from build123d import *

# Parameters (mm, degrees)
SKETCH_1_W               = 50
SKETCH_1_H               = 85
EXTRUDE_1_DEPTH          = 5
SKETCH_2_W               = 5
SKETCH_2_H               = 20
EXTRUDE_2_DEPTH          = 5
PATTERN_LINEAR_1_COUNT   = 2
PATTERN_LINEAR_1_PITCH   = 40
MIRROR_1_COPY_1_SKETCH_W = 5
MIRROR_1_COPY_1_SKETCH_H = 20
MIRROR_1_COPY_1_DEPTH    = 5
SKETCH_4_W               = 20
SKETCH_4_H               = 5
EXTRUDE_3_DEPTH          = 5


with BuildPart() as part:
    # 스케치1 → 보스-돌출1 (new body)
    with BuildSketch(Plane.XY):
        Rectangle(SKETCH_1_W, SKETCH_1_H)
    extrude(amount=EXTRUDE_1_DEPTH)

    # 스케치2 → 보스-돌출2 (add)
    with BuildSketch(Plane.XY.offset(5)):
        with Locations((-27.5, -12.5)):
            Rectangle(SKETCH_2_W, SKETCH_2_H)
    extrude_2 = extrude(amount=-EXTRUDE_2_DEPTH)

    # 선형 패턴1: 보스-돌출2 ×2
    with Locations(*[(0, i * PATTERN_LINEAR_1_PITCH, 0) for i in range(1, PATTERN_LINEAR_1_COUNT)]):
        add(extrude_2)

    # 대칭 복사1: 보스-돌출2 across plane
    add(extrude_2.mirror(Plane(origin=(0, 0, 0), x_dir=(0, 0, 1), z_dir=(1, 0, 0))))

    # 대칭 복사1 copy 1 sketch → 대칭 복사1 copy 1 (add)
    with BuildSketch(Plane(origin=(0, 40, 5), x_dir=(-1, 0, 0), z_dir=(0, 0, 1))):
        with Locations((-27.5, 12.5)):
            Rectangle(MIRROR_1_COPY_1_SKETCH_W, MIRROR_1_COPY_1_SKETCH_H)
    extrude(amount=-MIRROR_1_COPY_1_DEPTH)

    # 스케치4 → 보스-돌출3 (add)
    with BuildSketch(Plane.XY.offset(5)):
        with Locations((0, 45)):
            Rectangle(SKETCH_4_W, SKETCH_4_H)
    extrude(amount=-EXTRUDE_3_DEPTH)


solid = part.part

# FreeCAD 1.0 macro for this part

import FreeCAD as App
import Part
import Sketcher
Q = App.Units.Quantity


def add_polygon(sketch, points):
    """Adds a closed chain of lines whose ends are joined by coincident constraints."""
    first, n = sketch.GeometryCount, len(points)
    for a, b in zip(points, points[1:] + points[:1]):
        sketch.addGeometry(Part.LineSegment(App.Vector(*a, 0), App.Vector(*b, 0)), False)
    for i in range(n):
        sketch.addConstraint(Sketcher.Constraint("Coincident", first + i, 2, first + (i + 1) % n, 1))

doc = App.newDocument("Part")
body = doc.addObject("PartDesign::Body", "Body")

# Sketch on XY plane
sketch1 = body.newObject("Sketcher::SketchObject", "Sketch")
sketch1.AttachmentSupport = (doc.getObject("XY_Plane"), [""])
sketch1.MapMode = "FlatFace"
add_polygon(sketch1, [(-25, 42), (-25, -42), (25, -42), (25, 42)])  # lines 0-3
sketch1.addConstraint([
    Sketcher.Constraint("Vertical", 0),
    Sketcher.Constraint("Horizontal", 1),
    Sketcher.Constraint("Vertical", 2),
    Sketcher.Constraint("Horizontal", 3),
    Sketcher.Constraint("Symmetric", 0, 2, 2, 2, -1, 1),
    Sketcher.Constraint("DistanceX", 1, 1, 1, 2, Q("50 mm")),
    Sketcher.Constraint("DistanceY", 0, 2, 0, 1, Q("85 mm")),
])
pad1 = body.newObject("PartDesign::Pad", "Pad")
pad1.Profile = sketch1
pad1.Length = 5

# Sketch on XY plane
sketch2 = body.newObject("Sketcher::SketchObject", "Sketch001")
sketch2.AttachmentSupport = (doc.getObject("XY_Plane"), [""])
sketch2.MapMode = "FlatFace"
sketch2.AttachmentOffset = App.Placement(App.Vector(0, 0, 5), App.Rotation())
add_polygon(sketch2, [(-30, -2), (-30, -22), (-25, -22), (-25, -2)])  # lines 0-3
sketch2.addConstraint([
    Sketcher.Constraint("Vertical", 0),
    Sketcher.Constraint("Horizontal", 1),
    Sketcher.Constraint("Vertical", 2),
    Sketcher.Constraint("Horizontal", 3),
    Sketcher.Constraint("DistanceX", 1, 1, 1, 2, Q("5 mm")),
    Sketcher.Constraint("DistanceY", 0, 2, 0, 1, Q("20 mm")),
    Sketcher.Constraint("DistanceX", 0, 2, -1, 1, Q("30 mm")),
    Sketcher.Constraint("DistanceY", 0, 2, -1, 1, Q("22.5 mm")),
])
pad2 = body.newObject("PartDesign::Pad", "Pad001")
pad2.Profile = sketch2
pad2.Length = 5
pad2.Reversed = True
doc.recompute()

linearpattern = body.newObject("PartDesign::LinearPattern", "LinearPattern")
linearpattern.Originals = [pad2]
linearpattern.Direction = (doc.getObject("Y_Axis"), [""])
linearpattern.Mode = "offset"
linearpattern.Offset = 40
linearpattern.Occurrences = 2
body.Tip = linearpattern
doc.recompute()

mirrored = body.newObject("PartDesign::Mirrored", "Mirrored")
mirrored.Originals = [pad2]
mirrored.MirrorPlane = (doc.getObject("YZ_Plane"), [""])
body.Tip = mirrored

# Sketch on XY plane
sketch3 = body.newObject("Sketcher::SketchObject", "Sketch002")
sketch3.AttachmentSupport = (doc.getObject("XY_Plane"), [""])
sketch3.MapMode = "FlatFace"
sketch3.AttachmentOffset = App.Placement(App.Vector(0, 0, 5), App.Rotation())
add_polygon(sketch3, [(30, 18), (30, 38), (25, 38), (25, 18)])  # lines 0-3
sketch3.addConstraint([
    Sketcher.Constraint("Vertical", 0),
    Sketcher.Constraint("Horizontal", 1),
    Sketcher.Constraint("Vertical", 2),
    Sketcher.Constraint("Horizontal", 3),
    Sketcher.Constraint("DistanceX", 1, 2, 1, 1, Q("5 mm")),
    Sketcher.Constraint("DistanceY", 0, 1, 0, 2, Q("20 mm")),
    Sketcher.Constraint("DistanceX", -1, 1, 0, 2, Q("30 mm")),
    Sketcher.Constraint("DistanceY", -1, 1, 0, 2, Q("37.5 mm")),
])
pad3 = body.newObject("PartDesign::Pad", "Pad002")
pad3.Profile = sketch3
pad3.Length = 5
pad3.Reversed = True

# Sketch on XY plane
sketch4 = body.newObject("Sketcher::SketchObject", "Sketch003")
sketch4.AttachmentSupport = (doc.getObject("XY_Plane"), [""])
sketch4.MapMode = "FlatFace"
sketch4.AttachmentOffset = App.Placement(App.Vector(0, 0, 5), App.Rotation())
add_polygon(sketch4, [(-10, 48), (-10, 42), (10, 42), (10, 48)])  # lines 0-3
sketch4.addConstraint([
    Sketcher.Constraint("Vertical", 0),
    Sketcher.Constraint("Horizontal", 1),
    Sketcher.Constraint("Vertical", 2),
    Sketcher.Constraint("Horizontal", 3),
    Sketcher.Constraint("DistanceX", 1, 1, 1, 2, Q("20 mm")),
    Sketcher.Constraint("DistanceY", 0, 2, 0, 1, Q("5 mm")),
    Sketcher.Constraint("DistanceX", 0, 2, -1, 1, Q("10 mm")),
    Sketcher.Constraint("DistanceY", -1, 1, 0, 2, Q("42.5 mm")),
])
pad4 = body.newObject("PartDesign::Pad", "Pad003")
pad4.Profile = sketch4
pad4.Length = 5
pad4.Reversed = True

doc.recompute()
